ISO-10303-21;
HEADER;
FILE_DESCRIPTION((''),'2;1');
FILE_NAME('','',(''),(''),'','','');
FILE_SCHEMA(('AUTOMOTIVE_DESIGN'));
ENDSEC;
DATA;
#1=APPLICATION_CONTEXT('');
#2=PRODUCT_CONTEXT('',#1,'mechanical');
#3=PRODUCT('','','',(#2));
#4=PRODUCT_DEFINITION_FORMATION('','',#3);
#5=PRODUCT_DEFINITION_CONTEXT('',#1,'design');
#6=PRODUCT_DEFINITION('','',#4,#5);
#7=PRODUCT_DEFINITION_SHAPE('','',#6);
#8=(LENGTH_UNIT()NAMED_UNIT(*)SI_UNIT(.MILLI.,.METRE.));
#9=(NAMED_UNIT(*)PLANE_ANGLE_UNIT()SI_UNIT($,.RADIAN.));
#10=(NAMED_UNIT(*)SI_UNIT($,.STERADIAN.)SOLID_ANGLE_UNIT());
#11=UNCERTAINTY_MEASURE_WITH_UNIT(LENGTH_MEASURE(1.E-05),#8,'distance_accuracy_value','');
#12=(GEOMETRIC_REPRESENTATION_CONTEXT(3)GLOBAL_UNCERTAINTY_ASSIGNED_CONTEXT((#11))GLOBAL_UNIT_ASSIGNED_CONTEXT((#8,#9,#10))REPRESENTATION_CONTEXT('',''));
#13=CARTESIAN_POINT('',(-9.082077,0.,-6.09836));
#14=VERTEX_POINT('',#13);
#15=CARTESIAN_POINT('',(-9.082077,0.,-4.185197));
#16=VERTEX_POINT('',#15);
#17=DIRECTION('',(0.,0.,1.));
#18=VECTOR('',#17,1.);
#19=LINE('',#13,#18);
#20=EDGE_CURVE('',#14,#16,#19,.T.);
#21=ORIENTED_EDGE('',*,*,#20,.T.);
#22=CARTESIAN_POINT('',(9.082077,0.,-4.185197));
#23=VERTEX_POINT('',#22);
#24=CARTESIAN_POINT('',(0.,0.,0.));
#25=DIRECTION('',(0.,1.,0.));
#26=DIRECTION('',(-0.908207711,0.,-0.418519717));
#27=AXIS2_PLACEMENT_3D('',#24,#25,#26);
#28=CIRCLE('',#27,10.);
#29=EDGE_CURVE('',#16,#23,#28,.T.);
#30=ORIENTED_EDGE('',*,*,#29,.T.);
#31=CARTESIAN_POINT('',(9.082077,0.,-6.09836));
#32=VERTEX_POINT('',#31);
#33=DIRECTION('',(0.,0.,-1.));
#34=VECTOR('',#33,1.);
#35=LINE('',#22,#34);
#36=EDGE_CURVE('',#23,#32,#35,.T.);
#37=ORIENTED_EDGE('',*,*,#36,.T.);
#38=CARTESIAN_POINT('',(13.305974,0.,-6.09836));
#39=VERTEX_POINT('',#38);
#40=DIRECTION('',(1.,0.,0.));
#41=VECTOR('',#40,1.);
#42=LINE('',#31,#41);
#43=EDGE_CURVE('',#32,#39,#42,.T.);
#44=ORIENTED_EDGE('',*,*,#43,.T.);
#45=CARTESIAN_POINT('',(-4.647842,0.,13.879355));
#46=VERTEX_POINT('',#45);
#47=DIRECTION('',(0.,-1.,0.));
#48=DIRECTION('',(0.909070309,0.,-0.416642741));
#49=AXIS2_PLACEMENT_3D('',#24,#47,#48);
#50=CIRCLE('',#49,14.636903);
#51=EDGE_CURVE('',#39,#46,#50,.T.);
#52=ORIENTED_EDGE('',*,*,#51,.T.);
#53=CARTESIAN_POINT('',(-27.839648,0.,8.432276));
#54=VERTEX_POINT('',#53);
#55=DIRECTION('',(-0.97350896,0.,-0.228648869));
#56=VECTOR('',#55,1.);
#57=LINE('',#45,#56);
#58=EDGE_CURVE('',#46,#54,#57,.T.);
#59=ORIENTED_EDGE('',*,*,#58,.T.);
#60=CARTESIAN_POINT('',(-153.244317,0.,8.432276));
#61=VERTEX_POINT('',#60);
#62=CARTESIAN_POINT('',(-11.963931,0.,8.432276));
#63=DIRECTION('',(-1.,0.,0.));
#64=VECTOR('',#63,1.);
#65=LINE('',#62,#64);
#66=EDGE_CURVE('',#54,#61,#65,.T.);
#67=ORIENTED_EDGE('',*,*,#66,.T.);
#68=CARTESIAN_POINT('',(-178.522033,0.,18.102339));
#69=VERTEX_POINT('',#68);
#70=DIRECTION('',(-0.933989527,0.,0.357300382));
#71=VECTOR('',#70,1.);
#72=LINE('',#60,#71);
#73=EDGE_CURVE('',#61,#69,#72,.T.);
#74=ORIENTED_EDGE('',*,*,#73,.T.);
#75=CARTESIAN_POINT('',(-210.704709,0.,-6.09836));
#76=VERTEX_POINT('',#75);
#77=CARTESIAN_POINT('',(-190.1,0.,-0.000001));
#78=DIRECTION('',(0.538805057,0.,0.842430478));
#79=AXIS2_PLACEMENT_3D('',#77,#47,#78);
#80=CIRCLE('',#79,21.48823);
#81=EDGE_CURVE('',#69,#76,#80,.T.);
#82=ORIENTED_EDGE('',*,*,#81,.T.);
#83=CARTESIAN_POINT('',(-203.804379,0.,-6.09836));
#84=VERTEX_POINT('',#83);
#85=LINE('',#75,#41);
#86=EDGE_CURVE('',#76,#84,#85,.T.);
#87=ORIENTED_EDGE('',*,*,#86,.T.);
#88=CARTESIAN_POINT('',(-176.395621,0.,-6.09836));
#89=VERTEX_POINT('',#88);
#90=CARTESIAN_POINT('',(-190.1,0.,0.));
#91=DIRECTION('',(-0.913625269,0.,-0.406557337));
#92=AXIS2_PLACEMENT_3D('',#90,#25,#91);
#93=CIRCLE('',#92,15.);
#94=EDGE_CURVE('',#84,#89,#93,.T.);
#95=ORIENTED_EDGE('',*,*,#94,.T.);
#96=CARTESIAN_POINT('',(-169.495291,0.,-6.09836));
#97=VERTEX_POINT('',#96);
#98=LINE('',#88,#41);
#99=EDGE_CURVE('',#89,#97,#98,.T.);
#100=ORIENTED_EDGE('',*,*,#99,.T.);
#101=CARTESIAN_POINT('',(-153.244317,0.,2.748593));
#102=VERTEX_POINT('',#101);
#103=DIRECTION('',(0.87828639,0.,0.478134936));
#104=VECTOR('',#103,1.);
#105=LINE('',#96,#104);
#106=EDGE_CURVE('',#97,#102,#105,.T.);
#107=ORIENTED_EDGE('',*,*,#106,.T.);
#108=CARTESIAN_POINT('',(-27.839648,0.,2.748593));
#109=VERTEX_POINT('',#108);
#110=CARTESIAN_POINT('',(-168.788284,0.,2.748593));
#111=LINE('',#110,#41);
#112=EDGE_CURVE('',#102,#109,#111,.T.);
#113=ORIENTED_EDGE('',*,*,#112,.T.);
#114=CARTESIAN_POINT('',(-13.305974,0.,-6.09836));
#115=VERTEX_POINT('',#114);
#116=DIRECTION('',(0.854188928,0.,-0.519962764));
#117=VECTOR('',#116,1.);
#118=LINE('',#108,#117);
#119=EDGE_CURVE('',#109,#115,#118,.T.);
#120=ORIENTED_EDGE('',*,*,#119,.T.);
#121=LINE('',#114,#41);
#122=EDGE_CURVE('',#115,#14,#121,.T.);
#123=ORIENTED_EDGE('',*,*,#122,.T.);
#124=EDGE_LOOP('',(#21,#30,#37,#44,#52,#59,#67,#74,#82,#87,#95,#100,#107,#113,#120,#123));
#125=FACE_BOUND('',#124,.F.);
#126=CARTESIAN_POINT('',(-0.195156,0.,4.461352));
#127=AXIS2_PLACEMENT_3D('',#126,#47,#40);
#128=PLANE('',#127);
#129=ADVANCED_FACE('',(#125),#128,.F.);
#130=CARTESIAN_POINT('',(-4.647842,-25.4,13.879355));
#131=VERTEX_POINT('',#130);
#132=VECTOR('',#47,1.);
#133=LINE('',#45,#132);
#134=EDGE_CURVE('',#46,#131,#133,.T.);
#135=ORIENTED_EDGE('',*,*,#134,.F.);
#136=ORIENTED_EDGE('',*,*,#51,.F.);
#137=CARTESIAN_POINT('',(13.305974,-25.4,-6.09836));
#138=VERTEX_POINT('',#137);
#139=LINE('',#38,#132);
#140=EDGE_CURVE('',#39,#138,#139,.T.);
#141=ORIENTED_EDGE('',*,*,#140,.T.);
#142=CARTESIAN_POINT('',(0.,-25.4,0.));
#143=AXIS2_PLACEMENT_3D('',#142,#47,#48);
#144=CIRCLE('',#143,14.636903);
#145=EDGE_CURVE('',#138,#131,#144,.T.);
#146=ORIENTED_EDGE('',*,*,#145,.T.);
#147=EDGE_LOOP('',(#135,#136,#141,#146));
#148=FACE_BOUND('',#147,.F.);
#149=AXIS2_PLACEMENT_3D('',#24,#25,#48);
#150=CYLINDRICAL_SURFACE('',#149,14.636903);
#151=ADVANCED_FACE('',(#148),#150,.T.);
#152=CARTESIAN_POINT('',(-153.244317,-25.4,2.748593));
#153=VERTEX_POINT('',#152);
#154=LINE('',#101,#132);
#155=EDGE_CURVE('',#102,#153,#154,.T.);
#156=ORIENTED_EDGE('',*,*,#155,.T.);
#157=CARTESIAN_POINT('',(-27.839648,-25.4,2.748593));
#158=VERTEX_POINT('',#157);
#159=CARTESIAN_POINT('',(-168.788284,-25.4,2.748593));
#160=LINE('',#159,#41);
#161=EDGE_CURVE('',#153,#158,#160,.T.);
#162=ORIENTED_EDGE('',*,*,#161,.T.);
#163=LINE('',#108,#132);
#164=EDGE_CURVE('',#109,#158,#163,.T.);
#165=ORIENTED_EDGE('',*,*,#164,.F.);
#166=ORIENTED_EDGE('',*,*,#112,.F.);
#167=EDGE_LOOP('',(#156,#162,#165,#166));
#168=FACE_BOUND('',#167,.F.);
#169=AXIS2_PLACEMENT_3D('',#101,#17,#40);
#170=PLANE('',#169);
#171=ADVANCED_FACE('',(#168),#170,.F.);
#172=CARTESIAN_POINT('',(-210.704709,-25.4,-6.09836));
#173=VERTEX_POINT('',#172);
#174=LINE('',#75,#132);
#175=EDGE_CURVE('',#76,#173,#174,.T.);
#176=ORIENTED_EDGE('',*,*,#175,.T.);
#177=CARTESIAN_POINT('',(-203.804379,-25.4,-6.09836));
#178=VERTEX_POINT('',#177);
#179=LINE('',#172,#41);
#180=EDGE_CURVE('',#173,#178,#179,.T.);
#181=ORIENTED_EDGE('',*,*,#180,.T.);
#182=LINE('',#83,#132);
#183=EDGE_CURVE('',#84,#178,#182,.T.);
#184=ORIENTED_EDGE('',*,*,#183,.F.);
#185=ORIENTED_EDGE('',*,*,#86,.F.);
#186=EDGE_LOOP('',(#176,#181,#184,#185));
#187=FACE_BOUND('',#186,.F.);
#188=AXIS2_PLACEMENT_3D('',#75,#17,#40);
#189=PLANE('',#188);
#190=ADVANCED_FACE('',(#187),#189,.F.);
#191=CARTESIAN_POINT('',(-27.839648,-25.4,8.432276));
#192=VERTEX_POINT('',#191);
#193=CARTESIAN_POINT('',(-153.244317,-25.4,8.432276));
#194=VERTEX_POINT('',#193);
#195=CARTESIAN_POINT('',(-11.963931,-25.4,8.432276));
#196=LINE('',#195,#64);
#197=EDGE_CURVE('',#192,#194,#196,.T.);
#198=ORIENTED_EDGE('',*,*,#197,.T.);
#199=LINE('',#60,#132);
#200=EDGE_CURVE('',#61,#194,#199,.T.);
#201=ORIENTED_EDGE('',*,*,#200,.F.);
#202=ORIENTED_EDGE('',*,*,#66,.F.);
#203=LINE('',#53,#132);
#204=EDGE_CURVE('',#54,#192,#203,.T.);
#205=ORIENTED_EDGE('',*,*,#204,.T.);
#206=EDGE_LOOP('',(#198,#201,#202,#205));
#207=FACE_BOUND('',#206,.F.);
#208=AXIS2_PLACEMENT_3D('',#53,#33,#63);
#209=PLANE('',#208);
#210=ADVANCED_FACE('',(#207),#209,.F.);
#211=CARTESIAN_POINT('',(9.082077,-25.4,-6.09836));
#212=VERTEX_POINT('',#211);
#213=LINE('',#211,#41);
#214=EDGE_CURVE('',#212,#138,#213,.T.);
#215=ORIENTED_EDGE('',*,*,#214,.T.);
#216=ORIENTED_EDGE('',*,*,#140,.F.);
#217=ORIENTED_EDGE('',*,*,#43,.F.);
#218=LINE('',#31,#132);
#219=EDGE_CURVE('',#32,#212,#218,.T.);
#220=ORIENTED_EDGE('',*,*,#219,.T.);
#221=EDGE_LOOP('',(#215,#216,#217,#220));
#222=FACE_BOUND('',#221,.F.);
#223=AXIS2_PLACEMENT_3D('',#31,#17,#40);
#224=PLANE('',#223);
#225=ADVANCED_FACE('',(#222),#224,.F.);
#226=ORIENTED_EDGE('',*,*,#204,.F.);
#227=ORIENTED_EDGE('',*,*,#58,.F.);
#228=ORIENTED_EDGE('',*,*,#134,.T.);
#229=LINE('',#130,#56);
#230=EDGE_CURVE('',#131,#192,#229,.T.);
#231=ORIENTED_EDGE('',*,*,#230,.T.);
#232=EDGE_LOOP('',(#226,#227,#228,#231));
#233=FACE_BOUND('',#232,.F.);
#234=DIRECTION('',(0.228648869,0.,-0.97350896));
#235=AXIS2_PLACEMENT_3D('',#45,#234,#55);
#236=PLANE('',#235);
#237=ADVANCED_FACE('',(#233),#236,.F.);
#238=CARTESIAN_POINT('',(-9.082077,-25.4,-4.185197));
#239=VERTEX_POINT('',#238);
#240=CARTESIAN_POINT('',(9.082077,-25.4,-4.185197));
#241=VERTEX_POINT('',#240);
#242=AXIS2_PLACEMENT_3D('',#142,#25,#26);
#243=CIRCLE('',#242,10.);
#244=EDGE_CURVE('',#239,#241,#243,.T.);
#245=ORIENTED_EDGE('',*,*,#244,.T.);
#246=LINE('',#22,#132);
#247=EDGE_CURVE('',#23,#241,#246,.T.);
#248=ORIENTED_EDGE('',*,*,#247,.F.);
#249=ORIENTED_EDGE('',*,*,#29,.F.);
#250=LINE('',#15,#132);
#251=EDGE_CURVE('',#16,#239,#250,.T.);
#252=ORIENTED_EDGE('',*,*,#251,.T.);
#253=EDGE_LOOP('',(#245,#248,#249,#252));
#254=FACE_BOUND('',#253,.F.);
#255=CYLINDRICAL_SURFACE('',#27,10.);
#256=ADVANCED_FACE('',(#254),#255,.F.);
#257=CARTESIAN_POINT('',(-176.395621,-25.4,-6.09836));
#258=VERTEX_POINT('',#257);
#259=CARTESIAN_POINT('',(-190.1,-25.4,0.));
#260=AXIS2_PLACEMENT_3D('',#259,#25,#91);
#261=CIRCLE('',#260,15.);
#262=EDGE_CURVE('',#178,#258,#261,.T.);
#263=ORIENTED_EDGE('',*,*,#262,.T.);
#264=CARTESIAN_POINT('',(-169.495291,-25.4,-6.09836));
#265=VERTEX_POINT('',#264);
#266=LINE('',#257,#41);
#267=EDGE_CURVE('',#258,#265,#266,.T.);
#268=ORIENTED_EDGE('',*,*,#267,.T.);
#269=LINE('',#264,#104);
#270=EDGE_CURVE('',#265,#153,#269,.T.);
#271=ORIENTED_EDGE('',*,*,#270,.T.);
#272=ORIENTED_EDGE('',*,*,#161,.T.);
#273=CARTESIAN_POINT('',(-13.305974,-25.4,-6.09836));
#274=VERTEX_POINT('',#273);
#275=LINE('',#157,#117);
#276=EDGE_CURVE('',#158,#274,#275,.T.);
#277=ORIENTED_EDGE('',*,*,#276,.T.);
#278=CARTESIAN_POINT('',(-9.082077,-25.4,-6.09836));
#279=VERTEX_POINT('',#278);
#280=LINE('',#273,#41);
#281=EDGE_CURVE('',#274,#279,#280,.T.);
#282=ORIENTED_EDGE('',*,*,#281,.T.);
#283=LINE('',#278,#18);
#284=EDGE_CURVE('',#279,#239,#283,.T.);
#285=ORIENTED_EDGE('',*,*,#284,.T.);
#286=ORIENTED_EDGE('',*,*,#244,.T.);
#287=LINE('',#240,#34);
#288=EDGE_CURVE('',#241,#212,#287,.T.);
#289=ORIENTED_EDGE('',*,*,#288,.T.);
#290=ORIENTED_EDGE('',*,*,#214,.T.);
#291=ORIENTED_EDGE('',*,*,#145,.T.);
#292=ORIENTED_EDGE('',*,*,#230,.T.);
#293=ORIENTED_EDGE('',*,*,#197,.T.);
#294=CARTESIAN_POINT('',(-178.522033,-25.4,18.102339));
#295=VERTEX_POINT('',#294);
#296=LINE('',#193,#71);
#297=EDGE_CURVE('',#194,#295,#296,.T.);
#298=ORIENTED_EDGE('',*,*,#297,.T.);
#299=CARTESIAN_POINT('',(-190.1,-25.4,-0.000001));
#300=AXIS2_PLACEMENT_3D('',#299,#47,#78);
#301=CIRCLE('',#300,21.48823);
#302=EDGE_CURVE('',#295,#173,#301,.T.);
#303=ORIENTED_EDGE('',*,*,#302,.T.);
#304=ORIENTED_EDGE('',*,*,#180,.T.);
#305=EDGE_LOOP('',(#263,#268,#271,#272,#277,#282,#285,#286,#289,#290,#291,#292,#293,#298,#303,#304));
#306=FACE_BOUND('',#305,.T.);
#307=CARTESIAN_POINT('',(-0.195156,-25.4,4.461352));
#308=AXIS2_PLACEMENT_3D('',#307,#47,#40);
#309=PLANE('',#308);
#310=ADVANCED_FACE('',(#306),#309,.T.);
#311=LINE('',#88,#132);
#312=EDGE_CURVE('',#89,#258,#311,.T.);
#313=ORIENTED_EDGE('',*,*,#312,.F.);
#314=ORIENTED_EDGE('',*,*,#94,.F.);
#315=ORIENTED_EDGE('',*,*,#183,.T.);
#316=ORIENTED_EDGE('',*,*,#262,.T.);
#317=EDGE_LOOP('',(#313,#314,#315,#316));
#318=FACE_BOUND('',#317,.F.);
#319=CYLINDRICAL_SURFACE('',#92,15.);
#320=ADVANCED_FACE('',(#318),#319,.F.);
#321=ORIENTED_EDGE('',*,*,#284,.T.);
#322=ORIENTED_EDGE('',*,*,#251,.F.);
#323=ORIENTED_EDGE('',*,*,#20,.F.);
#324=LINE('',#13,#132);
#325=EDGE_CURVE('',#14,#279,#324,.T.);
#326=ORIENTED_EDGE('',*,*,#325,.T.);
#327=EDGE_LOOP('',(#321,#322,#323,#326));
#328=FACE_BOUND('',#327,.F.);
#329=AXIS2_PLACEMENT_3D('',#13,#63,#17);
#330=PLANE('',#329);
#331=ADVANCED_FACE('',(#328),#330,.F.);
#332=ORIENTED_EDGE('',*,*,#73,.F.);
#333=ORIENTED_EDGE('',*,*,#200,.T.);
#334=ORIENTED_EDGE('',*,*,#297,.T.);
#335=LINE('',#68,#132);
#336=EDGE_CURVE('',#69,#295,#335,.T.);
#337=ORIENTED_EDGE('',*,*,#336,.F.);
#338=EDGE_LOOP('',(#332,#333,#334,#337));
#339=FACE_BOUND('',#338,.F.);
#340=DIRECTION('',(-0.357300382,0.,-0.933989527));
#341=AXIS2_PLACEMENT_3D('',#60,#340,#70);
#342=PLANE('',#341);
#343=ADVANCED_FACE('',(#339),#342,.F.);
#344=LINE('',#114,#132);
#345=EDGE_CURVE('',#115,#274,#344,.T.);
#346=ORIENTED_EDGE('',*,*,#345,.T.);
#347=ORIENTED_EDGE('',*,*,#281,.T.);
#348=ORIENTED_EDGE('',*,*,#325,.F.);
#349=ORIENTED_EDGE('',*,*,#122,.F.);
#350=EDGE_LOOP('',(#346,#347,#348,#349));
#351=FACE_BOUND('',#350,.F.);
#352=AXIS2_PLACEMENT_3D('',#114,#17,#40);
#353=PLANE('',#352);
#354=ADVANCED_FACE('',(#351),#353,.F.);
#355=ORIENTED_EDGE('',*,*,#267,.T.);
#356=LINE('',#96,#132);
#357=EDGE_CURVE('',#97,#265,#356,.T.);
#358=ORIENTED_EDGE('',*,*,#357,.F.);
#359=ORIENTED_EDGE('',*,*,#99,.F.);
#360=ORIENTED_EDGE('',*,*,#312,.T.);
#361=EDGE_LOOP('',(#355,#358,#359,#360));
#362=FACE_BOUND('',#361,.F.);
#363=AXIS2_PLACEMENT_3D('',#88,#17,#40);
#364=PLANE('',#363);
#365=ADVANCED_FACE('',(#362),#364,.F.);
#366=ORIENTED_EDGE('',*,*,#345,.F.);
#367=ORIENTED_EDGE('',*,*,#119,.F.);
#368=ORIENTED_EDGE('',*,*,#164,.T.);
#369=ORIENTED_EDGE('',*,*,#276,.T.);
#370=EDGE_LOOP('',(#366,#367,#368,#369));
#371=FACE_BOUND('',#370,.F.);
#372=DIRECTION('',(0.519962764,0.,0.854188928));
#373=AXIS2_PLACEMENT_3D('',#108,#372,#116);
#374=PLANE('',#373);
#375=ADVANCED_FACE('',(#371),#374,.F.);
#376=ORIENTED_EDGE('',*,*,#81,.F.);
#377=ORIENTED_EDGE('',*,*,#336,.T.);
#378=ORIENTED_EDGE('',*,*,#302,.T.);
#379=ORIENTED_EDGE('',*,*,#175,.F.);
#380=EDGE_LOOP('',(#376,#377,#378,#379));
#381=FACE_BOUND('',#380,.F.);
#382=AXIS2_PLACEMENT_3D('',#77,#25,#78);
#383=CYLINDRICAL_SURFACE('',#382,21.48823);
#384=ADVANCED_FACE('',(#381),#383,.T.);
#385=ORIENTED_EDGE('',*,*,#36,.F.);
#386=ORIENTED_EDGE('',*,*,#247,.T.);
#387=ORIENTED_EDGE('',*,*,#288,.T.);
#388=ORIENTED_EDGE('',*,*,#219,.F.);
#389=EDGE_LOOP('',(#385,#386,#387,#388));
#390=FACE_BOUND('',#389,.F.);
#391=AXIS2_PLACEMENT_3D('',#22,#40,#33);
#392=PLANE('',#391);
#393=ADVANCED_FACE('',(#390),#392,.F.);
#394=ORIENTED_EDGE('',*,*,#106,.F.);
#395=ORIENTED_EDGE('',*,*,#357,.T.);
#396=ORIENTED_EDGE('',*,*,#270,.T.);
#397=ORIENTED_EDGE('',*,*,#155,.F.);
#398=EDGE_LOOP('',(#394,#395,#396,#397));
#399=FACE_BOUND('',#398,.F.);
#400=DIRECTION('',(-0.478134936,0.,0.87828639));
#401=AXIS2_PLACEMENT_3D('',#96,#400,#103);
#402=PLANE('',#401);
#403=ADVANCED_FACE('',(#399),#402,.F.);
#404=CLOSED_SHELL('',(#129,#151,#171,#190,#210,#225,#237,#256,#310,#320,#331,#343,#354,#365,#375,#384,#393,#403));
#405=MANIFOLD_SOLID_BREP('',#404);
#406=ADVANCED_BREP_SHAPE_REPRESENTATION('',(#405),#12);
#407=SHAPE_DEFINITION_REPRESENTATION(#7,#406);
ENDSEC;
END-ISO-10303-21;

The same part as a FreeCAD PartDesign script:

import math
import FreeCAD as App
import Part
import Sketcher
from FreeCAD import Vector

doc = App.newDocument("Part")
body = doc.addObject("PartDesign::Body", "Body")

# Sketch on XZ plane
sketch1 = body.newObject("Sketcher::SketchObject", "Sketch")
sketch1.AttachmentSupport = (doc.getObject("XZ_Plane"), [""])
sketch1.MapMode = "FlatFace"
sketch1.addGeometry([
    Part.ArcOfCircle(Part.Circle(Vector(0, 0, 0), Vector(0, 0, 1), 10), math.radians(-24.741166), math.radians(204.741166)),  # 0
    Part.LineSegment(Vector(9.082077, -4.185197, 0), Vector(9.082077, -6.09836, 0)),  # 1
    Part.LineSegment(Vector(9.082077, -6.09836, 0), Vector(13.305974, -6.09836, 0)),  # 2
    Part.ArcOfCircle(Part.Circle(Vector(0, 0, 0), Vector(0, 0, 1), 14.636903), math.radians(-24.62281), math.radians(108.514382)),  # 3
    Part.LineSegment(Vector(-4.647842, 13.879355, 0), Vector(-27.839648, 8.432276, 0)),  # 4
    Part.LineSegment(Vector(-27.839648, 8.432276, 0), Vector(-153.244317, 8.432276, 0)),  # 5
    Part.LineSegment(Vector(-153.244317, 8.432276, 0), Vector(-178.522033, 18.102339, 0)),  # 6
    Part.ArcOfCircle(Part.Circle(Vector(-190.1, -0.000001, 0), Vector(0, 0, 1), 21.48823), math.radians(57.397669), math.radians(196.487131)),  # 7
    Part.LineSegment(Vector(-210.704709, -6.09836, 0), Vector(-203.804379, -6.09836, 0)),  # 8
    Part.ArcOfCircle(Part.Circle(Vector(-190.1, 0, 0), Vector(0, 0, 1), 15), math.radians(-23.988755), math.radians(203.988755)),  # 9
    Part.LineSegment(Vector(-176.395621, -6.09836, 0), Vector(-169.495291, -6.09836, 0)),  # 10
    Part.LineSegment(Vector(-169.495291, -6.09836, 0), Vector(-153.244317, 2.748593, 0)),  # 11
    Part.LineSegment(Vector(-153.244317, 2.748593, 0), Vector(-27.839648, 2.748593, 0)),  # 12
    Part.LineSegment(Vector(-27.839648, 2.748593, 0), Vector(-13.305974, -6.09836, 0)),  # 13
    Part.LineSegment(Vector(-13.305974, -6.09836, 0), Vector(-9.082077, -6.09836, 0)),  # 14
    Part.LineSegment(Vector(-9.082077, -6.09836, 0), Vector(-9.082077, -4.185197, 0)),  # 15
], False)
sketch1.addConstraint([
    Sketcher.Constraint("Coincident", 0, 1, 1, 1),
    Sketcher.Constraint("Coincident", 1, 2, 2, 1),
    Sketcher.Constraint("Coincident", 2, 2, 3, 1),
    Sketcher.Constraint("Coincident", 3, 2, 4, 1),
    Sketcher.Constraint("Coincident", 4, 2, 5, 1),
    Sketcher.Constraint("Coincident", 5, 2, 6, 1),
    Sketcher.Constraint("Coincident", 6, 2, 7, 1),
    Sketcher.Constraint("Coincident", 7, 2, 8, 1),
    Sketcher.Constraint("Coincident", 8, 2, 9, 2),
    Sketcher.Constraint("Coincident", 9, 1, 10, 1),
    Sketcher.Constraint("Coincident", 10, 2, 11, 1),
    Sketcher.Constraint("Coincident", 11, 2, 12, 1),
    Sketcher.Constraint("Coincident", 12, 2, 13, 1),
    Sketcher.Constraint("Coincident", 13, 2, 14, 1),
    Sketcher.Constraint("Coincident", 14, 2, 15, 1),
    Sketcher.Constraint("Coincident", 15, 2, 0, 2),
    Sketcher.Constraint("Vertical", 1),
    Sketcher.Constraint("Horizontal", 2),
    Sketcher.Constraint("Horizontal", 5),
    Sketcher.Constraint("Horizontal", 8),
    Sketcher.Constraint("Horizontal", 10),
    Sketcher.Constraint("Horizontal", 12),
    Sketcher.Constraint("Horizontal", 14),
    Sketcher.Constraint("Vertical", 15),
    Sketcher.Constraint("Coincident", 0, 3, -1, 1),
    Sketcher.Constraint("Coincident", 3, 3, -1, 1),
    Sketcher.Constraint("Coincident", 9, 3, 7, 3),
    Sketcher.Constraint("Symmetric", 2, 2, 13, 2, -2),
    Sketcher.Constraint("PointOnObject", 7, 3, -1),
    Sketcher.Constraint("Horizontal", 2, 2, 7, 2),
    Sketcher.Constraint("Horizontal", 8, 2, 9, 1),
    Sketcher.Constraint("Horizontal", 0, 1, 15, 2),
    Sketcher.Constraint("Vertical", 5, 2, 11, 2),
    Sketcher.Constraint("Vertical", 4, 2, 12, 2),
    Sketcher.Constraint("Equal", 8, 10),
    Sketcher.Constraint("Radius", 0, 10.0),
    Sketcher.Constraint("Radius", 9, 15.0),
    Sketcher.Constraint("DistanceX", 7, 3, -1, 1, 190.1),
    Sketcher.Constraint("Radius", 7, 21.48823),
    Sketcher.Constraint("Radius", 3, 14.636903),
    Sketcher.Constraint("Distance", 4, 23.822899),
    Sketcher.Constraint("DistanceX", 5, 2, 5, 1, 125.404669),
    Sketcher.Constraint("DistanceX", 8, 1, 8, 2, 6.90033),
    Sketcher.Constraint("DistanceY", 7, 2, 6, 2, 24.200699),
    Sketcher.Constraint("Distance", 6, 27.064239),
    Sketcher.Constraint("Distance", 13, 17.01459),
    Sketcher.Constraint("DistanceX", 2, 1, 2, 2, 4.223897),
    Sketcher.Constraint("DistanceX", 4, 2, -1, 1, 27.839648),
])
pad1 = body.newObject("PartDesign::Pad", "Pad")
pad1.Profile = sketch1
pad1.Length = 25.4

doc.recompute()
